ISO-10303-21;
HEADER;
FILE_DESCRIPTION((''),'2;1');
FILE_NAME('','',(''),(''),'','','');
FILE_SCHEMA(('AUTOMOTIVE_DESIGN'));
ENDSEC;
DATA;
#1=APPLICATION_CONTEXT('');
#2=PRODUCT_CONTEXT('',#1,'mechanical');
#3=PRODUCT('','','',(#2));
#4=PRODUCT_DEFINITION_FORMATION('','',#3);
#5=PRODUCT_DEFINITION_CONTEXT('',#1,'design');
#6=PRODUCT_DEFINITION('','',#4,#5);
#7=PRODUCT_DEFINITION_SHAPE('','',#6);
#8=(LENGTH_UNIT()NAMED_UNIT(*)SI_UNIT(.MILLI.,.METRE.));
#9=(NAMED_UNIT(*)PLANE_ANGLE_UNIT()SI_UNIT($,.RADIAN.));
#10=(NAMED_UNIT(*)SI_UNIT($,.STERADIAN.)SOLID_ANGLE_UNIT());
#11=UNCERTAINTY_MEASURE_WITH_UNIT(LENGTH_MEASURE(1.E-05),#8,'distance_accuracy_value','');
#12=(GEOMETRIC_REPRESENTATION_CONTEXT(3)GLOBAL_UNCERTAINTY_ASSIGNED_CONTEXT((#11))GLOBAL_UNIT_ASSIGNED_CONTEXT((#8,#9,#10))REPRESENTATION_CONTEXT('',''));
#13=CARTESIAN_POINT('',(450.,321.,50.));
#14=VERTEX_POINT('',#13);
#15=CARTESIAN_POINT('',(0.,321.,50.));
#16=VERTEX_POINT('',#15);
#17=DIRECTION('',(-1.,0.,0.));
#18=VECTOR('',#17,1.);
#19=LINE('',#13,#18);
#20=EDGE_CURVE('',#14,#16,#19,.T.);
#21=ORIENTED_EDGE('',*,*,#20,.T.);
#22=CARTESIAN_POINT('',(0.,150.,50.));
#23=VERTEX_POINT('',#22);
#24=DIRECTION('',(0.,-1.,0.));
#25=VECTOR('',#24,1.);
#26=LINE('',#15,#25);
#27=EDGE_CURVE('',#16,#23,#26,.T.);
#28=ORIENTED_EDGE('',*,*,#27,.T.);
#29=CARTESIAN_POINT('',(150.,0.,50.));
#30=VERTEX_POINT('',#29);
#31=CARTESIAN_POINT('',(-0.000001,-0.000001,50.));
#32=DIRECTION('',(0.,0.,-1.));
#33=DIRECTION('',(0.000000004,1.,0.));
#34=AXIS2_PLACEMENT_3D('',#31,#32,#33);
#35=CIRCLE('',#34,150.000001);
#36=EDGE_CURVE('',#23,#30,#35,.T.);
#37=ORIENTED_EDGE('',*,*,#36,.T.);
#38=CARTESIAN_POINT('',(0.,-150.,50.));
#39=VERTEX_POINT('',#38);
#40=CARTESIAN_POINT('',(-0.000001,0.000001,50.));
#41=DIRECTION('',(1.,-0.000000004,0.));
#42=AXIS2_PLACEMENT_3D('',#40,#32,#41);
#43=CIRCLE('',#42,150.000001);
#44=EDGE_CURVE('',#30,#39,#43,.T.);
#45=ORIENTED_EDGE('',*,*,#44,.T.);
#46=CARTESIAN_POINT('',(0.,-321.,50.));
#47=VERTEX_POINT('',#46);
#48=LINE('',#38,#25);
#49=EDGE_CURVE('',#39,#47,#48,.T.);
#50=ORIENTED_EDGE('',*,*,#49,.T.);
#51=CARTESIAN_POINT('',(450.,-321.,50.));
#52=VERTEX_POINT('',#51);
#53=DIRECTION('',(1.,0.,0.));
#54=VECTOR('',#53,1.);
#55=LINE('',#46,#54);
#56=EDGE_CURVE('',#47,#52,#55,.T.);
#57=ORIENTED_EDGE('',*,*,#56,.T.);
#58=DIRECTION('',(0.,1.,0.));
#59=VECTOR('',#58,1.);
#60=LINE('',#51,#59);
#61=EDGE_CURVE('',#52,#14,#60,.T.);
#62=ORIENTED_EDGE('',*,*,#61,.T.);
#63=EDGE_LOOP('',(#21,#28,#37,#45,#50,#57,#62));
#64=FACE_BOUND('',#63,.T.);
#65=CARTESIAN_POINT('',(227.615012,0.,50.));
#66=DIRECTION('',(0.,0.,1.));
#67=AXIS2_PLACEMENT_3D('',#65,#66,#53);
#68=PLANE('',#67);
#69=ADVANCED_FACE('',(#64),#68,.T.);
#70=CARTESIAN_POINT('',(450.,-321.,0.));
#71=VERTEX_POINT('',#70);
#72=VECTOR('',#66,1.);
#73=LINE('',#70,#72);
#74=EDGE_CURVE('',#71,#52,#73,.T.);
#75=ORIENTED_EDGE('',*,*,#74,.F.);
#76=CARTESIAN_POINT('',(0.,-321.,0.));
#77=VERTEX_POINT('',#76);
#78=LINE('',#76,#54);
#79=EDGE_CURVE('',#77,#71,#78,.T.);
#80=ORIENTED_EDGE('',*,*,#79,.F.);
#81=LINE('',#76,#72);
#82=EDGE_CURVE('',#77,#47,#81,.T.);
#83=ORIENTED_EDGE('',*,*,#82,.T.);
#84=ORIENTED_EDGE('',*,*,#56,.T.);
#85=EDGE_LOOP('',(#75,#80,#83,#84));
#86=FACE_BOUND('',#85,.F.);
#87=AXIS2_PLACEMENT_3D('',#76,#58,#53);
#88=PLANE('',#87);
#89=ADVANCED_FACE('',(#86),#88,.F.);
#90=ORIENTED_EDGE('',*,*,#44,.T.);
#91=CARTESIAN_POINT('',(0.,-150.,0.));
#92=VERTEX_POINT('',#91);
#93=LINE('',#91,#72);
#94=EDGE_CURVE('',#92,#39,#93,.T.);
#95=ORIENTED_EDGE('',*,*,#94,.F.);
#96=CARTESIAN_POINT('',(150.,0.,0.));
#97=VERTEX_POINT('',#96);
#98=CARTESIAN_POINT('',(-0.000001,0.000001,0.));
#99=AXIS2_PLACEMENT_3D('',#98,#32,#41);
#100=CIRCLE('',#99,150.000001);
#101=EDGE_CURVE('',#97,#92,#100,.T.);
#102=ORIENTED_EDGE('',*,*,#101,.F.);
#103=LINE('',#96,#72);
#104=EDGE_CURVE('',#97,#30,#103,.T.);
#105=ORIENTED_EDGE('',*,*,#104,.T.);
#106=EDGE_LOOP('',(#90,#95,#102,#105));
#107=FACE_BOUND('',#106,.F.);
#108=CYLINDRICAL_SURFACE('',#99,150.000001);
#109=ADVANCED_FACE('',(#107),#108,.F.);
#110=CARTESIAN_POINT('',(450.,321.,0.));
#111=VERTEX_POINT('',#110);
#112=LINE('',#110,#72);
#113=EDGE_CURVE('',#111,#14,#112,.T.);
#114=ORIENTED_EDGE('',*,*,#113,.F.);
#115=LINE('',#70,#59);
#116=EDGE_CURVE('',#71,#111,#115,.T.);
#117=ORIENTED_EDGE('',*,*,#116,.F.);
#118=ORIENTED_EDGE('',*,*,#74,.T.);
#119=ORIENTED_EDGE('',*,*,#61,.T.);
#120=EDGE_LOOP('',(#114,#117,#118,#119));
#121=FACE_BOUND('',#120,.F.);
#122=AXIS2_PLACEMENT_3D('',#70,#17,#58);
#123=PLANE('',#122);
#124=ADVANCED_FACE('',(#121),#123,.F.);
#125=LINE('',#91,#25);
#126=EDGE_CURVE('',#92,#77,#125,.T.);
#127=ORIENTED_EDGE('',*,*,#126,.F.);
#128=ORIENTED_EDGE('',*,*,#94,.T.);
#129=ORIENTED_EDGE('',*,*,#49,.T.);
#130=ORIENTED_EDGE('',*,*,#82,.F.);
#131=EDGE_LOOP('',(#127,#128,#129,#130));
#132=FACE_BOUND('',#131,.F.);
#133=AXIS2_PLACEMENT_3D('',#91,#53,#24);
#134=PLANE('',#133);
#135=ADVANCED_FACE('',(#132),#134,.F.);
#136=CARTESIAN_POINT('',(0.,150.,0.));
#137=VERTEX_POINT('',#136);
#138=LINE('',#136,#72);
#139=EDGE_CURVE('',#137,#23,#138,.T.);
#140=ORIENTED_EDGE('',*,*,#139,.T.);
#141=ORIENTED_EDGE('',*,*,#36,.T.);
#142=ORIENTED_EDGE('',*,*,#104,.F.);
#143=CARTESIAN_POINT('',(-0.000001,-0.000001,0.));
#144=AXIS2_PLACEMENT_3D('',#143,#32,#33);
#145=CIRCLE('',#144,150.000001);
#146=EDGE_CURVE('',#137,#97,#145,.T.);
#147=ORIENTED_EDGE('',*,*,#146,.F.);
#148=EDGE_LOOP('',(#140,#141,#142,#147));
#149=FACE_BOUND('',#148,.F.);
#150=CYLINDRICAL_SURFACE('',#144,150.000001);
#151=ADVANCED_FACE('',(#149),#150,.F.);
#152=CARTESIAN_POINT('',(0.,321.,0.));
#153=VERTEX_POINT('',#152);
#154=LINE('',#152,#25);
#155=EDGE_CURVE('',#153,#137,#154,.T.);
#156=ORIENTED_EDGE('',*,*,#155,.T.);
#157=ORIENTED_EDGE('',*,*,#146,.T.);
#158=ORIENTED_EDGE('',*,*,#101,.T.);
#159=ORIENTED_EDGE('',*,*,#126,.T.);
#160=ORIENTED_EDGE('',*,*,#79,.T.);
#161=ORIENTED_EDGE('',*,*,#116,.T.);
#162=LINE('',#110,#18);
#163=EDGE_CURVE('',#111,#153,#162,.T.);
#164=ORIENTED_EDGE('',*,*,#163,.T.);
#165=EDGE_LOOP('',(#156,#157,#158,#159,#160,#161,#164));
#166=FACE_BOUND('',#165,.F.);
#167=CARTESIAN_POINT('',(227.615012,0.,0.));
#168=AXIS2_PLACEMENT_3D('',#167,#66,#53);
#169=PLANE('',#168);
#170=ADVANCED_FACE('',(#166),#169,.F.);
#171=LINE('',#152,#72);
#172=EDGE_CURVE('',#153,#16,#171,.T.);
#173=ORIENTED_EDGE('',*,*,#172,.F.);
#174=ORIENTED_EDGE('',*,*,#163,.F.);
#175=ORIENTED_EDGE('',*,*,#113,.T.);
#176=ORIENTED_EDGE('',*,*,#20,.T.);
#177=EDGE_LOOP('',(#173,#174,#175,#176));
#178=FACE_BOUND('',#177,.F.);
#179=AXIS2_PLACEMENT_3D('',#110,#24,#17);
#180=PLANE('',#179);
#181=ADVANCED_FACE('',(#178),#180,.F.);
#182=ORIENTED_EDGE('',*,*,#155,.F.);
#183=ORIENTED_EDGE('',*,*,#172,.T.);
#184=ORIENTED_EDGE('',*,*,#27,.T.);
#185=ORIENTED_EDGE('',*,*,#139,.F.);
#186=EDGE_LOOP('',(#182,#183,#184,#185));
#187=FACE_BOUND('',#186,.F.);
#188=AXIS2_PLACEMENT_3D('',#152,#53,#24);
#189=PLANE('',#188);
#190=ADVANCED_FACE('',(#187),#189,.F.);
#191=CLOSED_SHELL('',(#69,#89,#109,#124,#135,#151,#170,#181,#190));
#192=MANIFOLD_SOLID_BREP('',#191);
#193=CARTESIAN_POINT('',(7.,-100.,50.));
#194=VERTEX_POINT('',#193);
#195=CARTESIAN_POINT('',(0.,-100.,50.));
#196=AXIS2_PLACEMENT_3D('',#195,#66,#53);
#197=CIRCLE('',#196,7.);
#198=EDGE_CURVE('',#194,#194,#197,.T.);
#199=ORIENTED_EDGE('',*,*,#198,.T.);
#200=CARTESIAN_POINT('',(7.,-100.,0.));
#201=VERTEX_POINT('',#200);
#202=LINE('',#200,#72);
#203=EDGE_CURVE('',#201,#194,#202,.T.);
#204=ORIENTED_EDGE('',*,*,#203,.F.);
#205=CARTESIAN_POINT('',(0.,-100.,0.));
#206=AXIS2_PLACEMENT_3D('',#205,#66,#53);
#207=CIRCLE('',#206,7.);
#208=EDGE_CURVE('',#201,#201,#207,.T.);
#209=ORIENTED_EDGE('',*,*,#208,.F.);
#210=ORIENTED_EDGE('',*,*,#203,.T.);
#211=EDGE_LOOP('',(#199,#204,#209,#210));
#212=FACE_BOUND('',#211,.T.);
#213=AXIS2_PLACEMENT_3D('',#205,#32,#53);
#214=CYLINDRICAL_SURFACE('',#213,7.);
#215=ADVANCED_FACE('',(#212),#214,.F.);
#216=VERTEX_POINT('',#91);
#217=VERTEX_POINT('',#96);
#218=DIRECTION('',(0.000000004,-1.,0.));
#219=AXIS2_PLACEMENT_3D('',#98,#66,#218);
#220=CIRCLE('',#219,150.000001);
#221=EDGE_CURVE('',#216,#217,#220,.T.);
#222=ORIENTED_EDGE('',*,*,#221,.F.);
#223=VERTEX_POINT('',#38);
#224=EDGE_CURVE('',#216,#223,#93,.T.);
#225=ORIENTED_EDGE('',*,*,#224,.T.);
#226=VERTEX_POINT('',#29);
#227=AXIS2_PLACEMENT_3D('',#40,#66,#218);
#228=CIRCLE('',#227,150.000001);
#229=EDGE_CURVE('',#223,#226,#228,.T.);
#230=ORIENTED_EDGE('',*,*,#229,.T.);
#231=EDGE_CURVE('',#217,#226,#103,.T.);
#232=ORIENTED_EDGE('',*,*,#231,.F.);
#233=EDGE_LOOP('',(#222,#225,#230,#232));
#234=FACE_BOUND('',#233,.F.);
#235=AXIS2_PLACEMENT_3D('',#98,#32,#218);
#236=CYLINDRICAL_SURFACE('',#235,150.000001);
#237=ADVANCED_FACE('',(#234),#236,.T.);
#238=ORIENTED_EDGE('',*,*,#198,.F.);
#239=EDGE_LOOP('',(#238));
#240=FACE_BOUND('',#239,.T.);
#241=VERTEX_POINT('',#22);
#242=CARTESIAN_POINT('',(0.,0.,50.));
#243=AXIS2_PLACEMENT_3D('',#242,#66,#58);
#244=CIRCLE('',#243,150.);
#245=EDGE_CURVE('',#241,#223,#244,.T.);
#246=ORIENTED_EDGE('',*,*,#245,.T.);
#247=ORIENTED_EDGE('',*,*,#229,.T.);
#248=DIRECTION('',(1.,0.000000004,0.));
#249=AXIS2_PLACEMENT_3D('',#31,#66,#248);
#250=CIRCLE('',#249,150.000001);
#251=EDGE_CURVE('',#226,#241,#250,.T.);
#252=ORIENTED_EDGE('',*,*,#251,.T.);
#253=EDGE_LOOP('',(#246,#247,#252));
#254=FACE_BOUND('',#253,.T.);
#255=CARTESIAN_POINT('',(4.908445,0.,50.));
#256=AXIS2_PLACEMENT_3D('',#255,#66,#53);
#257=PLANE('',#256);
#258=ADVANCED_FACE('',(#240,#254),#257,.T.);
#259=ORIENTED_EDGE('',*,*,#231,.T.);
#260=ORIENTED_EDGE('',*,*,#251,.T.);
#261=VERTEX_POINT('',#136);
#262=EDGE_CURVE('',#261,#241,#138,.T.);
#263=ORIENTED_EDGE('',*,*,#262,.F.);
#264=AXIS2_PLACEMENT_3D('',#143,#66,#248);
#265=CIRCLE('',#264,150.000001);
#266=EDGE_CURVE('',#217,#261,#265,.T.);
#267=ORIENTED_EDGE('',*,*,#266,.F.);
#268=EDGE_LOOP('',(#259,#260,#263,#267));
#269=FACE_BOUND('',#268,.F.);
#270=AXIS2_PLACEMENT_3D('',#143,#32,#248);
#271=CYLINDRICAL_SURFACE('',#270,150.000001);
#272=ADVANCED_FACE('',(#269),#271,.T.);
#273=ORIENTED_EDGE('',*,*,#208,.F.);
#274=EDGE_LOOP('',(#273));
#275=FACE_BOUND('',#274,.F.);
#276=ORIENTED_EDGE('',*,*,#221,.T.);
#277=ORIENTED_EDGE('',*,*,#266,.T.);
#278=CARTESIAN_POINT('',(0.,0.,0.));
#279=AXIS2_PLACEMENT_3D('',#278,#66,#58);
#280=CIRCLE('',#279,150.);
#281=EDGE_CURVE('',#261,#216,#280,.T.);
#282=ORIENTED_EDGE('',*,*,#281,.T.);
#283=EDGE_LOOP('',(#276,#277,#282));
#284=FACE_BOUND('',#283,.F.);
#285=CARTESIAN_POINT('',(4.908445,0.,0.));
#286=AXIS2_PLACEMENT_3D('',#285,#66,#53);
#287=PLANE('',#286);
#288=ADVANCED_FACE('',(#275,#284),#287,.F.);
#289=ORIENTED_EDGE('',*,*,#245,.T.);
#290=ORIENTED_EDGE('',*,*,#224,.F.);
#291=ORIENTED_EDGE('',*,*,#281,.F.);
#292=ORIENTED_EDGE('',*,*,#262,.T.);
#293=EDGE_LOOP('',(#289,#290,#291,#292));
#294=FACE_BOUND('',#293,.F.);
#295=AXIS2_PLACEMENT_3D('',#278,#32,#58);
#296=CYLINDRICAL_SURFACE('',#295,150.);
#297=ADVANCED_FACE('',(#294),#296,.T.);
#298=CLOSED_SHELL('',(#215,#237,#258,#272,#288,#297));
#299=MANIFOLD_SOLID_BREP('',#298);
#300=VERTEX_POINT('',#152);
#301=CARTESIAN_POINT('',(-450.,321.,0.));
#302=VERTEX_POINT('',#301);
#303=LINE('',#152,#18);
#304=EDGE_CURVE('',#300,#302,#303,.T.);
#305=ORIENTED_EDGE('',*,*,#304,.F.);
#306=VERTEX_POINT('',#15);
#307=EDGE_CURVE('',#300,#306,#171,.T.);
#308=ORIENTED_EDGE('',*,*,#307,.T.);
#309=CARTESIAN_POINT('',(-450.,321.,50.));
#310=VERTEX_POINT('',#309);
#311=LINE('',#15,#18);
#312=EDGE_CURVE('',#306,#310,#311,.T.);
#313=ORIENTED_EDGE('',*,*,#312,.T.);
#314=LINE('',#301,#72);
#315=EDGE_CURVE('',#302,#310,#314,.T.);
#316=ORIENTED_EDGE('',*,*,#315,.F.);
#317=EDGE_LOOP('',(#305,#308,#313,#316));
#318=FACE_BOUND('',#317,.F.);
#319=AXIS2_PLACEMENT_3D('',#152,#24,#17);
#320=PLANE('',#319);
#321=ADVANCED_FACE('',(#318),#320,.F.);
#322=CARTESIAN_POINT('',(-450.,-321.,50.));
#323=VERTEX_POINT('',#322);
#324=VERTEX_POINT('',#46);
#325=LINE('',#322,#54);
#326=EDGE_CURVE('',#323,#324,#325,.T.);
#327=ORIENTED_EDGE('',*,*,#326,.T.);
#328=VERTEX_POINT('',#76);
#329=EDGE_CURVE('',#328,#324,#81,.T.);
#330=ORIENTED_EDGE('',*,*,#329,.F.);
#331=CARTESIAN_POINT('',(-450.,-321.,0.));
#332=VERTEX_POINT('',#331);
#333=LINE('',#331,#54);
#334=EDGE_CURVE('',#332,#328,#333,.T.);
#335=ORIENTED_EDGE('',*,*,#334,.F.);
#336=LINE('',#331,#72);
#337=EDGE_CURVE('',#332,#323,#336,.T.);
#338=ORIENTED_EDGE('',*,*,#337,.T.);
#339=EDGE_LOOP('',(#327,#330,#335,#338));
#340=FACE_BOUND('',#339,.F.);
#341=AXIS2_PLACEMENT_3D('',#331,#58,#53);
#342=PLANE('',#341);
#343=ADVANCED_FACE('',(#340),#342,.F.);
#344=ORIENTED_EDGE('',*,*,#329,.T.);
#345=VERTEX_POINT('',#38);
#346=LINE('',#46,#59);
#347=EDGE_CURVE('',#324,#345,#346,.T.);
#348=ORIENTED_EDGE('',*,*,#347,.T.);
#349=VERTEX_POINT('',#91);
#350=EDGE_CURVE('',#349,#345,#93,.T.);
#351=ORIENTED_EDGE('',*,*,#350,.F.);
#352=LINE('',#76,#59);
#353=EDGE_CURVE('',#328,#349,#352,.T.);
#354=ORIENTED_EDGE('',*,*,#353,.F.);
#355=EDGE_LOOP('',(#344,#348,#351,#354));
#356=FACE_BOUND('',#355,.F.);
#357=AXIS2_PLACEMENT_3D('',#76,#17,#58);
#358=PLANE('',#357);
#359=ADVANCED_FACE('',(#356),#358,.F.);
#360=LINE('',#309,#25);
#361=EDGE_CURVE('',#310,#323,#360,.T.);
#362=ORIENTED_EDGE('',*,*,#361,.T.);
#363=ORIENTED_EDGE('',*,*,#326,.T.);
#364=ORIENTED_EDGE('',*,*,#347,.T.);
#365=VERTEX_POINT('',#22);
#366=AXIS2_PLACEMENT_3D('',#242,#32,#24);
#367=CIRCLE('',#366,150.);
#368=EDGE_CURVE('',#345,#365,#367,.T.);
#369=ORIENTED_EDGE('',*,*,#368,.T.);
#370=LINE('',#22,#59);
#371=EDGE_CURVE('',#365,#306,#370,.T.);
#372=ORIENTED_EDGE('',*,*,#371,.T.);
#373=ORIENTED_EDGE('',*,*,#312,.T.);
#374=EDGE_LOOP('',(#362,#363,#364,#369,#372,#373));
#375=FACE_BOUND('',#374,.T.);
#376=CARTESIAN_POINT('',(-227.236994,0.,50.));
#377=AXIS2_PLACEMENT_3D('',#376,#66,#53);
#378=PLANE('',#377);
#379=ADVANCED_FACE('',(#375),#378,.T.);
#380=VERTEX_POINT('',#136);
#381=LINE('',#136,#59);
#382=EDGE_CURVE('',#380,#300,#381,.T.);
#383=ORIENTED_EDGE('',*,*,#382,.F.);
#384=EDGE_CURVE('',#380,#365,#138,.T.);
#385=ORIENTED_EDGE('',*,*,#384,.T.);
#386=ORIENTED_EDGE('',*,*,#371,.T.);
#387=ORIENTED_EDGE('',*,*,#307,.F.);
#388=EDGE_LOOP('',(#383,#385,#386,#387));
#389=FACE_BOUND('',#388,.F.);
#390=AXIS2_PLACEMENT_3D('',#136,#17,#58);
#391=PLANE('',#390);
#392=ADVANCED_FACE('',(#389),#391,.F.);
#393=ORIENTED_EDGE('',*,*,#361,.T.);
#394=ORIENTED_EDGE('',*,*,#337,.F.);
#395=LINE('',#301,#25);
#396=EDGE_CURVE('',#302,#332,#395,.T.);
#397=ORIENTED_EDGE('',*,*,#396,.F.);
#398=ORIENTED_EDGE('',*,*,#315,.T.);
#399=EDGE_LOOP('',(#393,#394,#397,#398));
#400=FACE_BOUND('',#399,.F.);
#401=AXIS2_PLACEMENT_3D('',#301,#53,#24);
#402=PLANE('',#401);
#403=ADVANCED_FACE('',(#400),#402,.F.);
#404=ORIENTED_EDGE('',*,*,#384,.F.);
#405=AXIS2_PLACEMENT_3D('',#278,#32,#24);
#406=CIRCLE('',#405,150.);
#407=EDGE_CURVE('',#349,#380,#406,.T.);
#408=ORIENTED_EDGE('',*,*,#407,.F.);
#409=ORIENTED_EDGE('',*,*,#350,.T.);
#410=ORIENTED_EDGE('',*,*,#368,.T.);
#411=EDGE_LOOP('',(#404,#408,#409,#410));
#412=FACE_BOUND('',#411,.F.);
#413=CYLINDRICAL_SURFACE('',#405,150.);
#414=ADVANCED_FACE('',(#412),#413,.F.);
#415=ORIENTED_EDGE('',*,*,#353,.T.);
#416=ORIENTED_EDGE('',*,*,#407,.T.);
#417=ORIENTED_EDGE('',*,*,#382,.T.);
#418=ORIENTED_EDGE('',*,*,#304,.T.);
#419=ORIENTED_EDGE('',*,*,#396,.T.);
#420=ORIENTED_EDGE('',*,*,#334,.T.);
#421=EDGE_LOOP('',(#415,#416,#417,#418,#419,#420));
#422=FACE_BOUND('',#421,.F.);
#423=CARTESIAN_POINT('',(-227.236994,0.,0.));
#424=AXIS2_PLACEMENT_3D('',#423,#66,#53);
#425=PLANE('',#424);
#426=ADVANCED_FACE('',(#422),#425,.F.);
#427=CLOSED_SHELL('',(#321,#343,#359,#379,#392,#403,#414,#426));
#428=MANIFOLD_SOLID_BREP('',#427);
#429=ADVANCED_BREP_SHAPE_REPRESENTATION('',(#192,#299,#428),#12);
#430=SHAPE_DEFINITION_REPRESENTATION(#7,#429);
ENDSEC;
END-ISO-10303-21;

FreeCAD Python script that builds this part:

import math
import FreeCAD as App
import Part
import Sketcher

V = App.Vector
Q = App.Units.Quantity

doc = App.newDocument("Part")
body = doc.addObject("PartDesign::Body", "Body")

sketch1 = doc.addObject("Sketcher::SketchObject", "Sketch")
body.addObject(sketch1)
sketch1.AttachmentSupport = (doc.XY_Plane, [""])
sketch1.MapMode = "FlatFace"
sketch1.addGeometry([
    Part.LineSegment(V(0, 150, 0), V(0, 321, 0)),
    Part.LineSegment(V(0, 321, 0), V(-450, 321, 0)),
    Part.LineSegment(V(-450, 321, 0), V(-450, -321, 0)),
    Part.LineSegment(V(-450, -321, 0), V(0, -321, 0)),
    Part.LineSegment(V(0, -321, 0), V(0, -150, 0)),
    Part.ArcOfCircle(Part.Circle(V(0, 0, 0), V(0, 0, 1), 150), math.radians(90), math.radians(270)),
], False)
sketch1.addConstraint([
    Sketcher.Constraint("Coincident", 0, 2, 1, 1),
    Sketcher.Constraint("Coincident", 1, 2, 2, 1),
    Sketcher.Constraint("Coincident", 2, 2, 3, 1),
    Sketcher.Constraint("Coincident", 3, 2, 4, 1),
    Sketcher.Constraint("Coincident", 4, 2, 5, 2),
    Sketcher.Constraint("Coincident", 5, 1, 0, 1),
    Sketcher.Constraint("Vertical", 0),
    Sketcher.Constraint("Horizontal", 1),
    Sketcher.Constraint("Vertical", 2),
    Sketcher.Constraint("Horizontal", 3),
    Sketcher.Constraint("Vertical", 4),
    Sketcher.Constraint("Coincident", 5, 3, -1, 1),
    Sketcher.Constraint("Symmetric", 0, 2, 3, 2, -1, 1),
    Sketcher.Constraint("PointOnObject", 0, 2, -2),
    Sketcher.Constraint("Radius", 5, Q("150 mm")),
    Sketcher.Constraint("DistanceX", 1, 2, 1, 1, Q("450 mm")),
    Sketcher.Constraint("DistanceY", 0, 1, 0, 2, Q("171 mm")),
])
pad1 = doc.addObject("PartDesign::Pad", "Pad")
body.addObject(pad1)
pad1.Profile = sketch1
pad1.Length = 50
body2 = doc.addObject("PartDesign::Body", "Body001")

sketch2 = doc.addObject("Sketcher::SketchObject", "Sketch001")
body2.addObject(sketch2)
sketch2.AttachmentSupport = (doc.getObject("XY_Plane001"), [""])
sketch2.MapMode = "FlatFace"
sketch2.addGeometry([
    Part.LineSegment(V(450, -321, 0), V(450, 321, 0)),
    Part.LineSegment(V(450, 321, 0), V(0, 321, 0)),
    Part.LineSegment(V(0, 321, 0), V(0, 150, 0)),
    Part.ArcOfCircle(Part.Circle(V(0, 0, 0), V(0, 0, 1), 150), math.radians(0), math.radians(90)),
    Part.ArcOfCircle(Part.Circle(V(0, 0, 0), V(0, 0, 1), 150), math.radians(-90), math.radians(0)),
    Part.LineSegment(V(0, -150, 0), V(0, -321, 0)),
    Part.LineSegment(V(0, -321, 0), V(450, -321, 0)),
], False)
sketch2.addConstraint([
    Sketcher.Constraint("Coincident", 0, 2, 1, 1),
    Sketcher.Constraint("Coincident", 1, 2, 2, 1),
    Sketcher.Constraint("Coincident", 2, 2, 3, 2),
    Sketcher.Constraint("Tangent", 3, 1, 4, 2),
    Sketcher.Constraint("Coincident", 4, 1, 5, 1),
    Sketcher.Constraint("Coincident", 5, 2, 6, 1),
    Sketcher.Constraint("Coincident", 6, 2, 0, 1),
    Sketcher.Constraint("Vertical", 0),
    Sketcher.Constraint("Horizontal", 1),
    Sketcher.Constraint("Vertical", 2),
    Sketcher.Constraint("Vertical", 5),
    Sketcher.Constraint("Horizontal", 6),
    Sketcher.Constraint("Coincident", 3, 3, -1, 1),
    Sketcher.Constraint("Equal", 3, 4),
    Sketcher.Constraint("Symmetric", 1, 2, 5, 2, -1, 1),
    Sketcher.Constraint("PointOnObject", 1, 2, -2),
    Sketcher.Constraint("PointOnObject", 3, 1, -1),
    Sketcher.Constraint("Radius", 3, Q("150.000001 mm")),
    Sketcher.Constraint("DistanceX", 1, 2, 1, 1, Q("450 mm")),
    Sketcher.Constraint("DistanceY", 0, 1, 0, 2, Q("642 mm")),
])
pad2 = doc.addObject("PartDesign::Pad", "Pad001")
body2.addObject(pad2)
pad2.Profile = sketch2
pad2.Length = 50
body3 = doc.addObject("PartDesign::Body", "Body002")

sketch3 = doc.addObject("Sketcher::SketchObject", "Sketch002")
body3.addObject(sketch3)
sketch3.AttachmentSupport = (doc.getObject("XY_Plane002"), [""])
sketch3.MapMode = "FlatFace"
sketch3.addGeometry([
    Part.ArcOfCircle(Part.Circle(V(0, 0, 0), V(0, 0, 1), 150), math.radians(0), math.radians(90)),
    Part.ArcOfCircle(Part.Circle(V(0, 0, 0), V(0, 0, 1), 150), math.radians(90), math.radians(270)),
    Part.ArcOfCircle(Part.Circle(V(0, 0, 0), V(0, 0, 1), 150), math.radians(-90), math.radians(0)),
    Part.Circle(V(0, -100, 0), V(0, 0, 1), 7),
], False)
sketch3.addConstraint([
    Sketcher.Constraint("Tangent", 0, 2, 1, 1),
    Sketcher.Constraint("Tangent", 1, 2, 2, 1),
    Sketcher.Constraint("Tangent", 2, 2, 0, 1),
    Sketcher.Constraint("Coincident", 0, 3, -1, 1),
    Sketcher.Constraint("PointOnObject", 3, 3, -2),
    Sketcher.Constraint("PointOnObject", 0, 2, -2),
    Sketcher.Constraint("PointOnObject", 1, 2, -2),
    Sketcher.Constraint("PointOnObject", 2, 2, -1),
    Sketcher.Constraint("Diameter", 3, Q("14 mm")),
    Sketcher.Constraint("Radius", 0, Q("150.000001 mm")),
    Sketcher.Constraint("DistanceY", 3, 3, -1, 1, Q("100 mm")),
])
pad3 = doc.addObject("PartDesign::Pad", "Pad002")
body3.addObject(pad3)
pad3.Profile = sketch3
pad3.Length = 50

doc.recompute()
